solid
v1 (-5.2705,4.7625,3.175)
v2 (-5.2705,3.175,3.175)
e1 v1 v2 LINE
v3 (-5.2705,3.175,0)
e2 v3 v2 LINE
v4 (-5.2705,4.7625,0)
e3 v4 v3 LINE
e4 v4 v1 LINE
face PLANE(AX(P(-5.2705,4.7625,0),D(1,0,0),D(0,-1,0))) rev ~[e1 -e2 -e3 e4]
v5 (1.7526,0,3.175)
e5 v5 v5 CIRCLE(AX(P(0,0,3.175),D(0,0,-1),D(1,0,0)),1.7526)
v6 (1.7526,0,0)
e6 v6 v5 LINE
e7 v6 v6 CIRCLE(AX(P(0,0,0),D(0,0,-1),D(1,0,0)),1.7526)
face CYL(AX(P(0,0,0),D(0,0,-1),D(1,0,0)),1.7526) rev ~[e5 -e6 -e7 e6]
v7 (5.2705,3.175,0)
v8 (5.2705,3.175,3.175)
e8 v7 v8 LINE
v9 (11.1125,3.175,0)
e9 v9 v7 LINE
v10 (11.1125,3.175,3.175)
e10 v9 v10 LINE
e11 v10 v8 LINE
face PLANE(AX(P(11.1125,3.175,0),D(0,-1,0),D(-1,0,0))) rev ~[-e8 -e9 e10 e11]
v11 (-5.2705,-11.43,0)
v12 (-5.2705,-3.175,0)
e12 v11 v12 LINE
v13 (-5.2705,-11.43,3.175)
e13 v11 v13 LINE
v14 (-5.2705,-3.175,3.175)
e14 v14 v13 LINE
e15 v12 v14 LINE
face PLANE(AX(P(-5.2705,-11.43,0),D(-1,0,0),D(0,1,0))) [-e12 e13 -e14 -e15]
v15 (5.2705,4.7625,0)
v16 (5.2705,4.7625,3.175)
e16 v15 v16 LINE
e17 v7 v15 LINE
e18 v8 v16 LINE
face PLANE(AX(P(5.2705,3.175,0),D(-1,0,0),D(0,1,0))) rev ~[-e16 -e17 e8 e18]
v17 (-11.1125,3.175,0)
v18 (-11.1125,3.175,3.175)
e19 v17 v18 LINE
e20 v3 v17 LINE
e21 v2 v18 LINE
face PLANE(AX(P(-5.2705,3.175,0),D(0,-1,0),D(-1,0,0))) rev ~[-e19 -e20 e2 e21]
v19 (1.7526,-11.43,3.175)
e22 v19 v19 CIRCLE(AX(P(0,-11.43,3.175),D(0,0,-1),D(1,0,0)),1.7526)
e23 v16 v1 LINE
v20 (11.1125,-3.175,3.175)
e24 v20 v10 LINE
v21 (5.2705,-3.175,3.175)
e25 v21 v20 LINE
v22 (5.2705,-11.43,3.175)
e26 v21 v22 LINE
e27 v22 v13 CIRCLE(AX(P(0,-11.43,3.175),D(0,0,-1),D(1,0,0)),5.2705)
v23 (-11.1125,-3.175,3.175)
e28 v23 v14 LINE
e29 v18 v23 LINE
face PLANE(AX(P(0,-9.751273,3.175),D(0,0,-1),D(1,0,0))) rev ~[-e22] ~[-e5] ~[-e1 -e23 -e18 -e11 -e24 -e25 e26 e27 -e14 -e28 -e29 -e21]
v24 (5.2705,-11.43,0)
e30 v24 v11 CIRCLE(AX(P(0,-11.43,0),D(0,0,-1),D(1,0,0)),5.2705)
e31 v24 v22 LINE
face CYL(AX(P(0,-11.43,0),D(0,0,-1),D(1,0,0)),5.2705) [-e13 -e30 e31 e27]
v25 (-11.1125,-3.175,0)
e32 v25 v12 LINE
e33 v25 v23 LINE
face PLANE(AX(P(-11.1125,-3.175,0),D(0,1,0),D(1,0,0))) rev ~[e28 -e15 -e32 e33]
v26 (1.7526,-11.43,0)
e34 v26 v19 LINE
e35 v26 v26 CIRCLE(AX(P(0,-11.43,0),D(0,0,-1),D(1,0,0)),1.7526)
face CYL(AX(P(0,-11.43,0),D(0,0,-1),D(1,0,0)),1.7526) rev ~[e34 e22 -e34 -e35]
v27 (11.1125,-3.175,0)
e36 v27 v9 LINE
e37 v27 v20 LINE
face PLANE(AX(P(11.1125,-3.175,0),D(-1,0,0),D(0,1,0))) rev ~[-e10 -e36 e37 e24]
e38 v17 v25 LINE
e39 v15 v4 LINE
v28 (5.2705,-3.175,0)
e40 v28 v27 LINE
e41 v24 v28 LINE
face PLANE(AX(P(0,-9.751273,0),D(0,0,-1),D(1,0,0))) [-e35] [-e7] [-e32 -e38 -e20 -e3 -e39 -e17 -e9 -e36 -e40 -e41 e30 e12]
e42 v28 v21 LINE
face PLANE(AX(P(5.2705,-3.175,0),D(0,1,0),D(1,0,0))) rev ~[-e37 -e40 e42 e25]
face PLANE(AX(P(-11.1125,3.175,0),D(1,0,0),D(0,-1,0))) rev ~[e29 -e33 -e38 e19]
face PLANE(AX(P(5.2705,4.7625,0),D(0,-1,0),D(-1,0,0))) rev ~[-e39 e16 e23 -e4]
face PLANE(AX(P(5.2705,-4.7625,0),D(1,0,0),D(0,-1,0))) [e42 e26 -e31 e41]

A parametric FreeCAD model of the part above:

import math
import FreeCAD as App
import Part
import Sketcher
Q = App.Units.Quantity

doc = App.newDocument("Part")
body = doc.addObject("PartDesign::Body", "Body")

# Sketch on XY plane
sketch1 = body.newObject("Sketcher::SketchObject", "Sketch")
sketch1.AttachmentSupport = (doc.getObject("XY_Plane"), [""])
sketch1.MapMode = "FlatFace"
sketch1.addGeometry([
    Part.LineSegment(App.Vector(-5.2705, 3.175, 0), App.Vector(-11.1125, 3.175, 0)),  # 0
    Part.LineSegment(App.Vector(-11.1125, 3.175, 0), App.Vector(-11.1125, -3.175, 0)),  # 1
    Part.LineSegment(App.Vector(-11.1125, -3.175, 0), App.Vector(-5.2705, -3.175, 0)),  # 2
    Part.LineSegment(App.Vector(-5.2705, -3.175, 0), App.Vector(-5.2705, -4.7625, 0)),  # 3
    Part.LineSegment(App.Vector(-5.2705, -4.7625, 0), App.Vector(5.2705, -4.7625, 0)),  # 4
    Part.LineSegment(App.Vector(5.2705, -4.7625, 0), App.Vector(5.2705, -3.175, 0)),  # 5
    Part.LineSegment(App.Vector(5.2705, -3.175, 0), App.Vector(11.1125, -3.175, 0)),  # 6
    Part.LineSegment(App.Vector(11.1125, -3.175, 0), App.Vector(11.1125, 3.175, 0)),  # 7
    Part.LineSegment(App.Vector(11.1125, 3.175, 0), App.Vector(5.2705, 3.175, 0)),  # 8
    Part.LineSegment(App.Vector(5.2705, 3.175, 0), App.Vector(5.2705, 4.7625, 0)),  # 9
    Part.LineSegment(App.Vector(5.2705, 4.7625, 0), App.Vector(-5.2705, 4.7625, 0)),  # 10
    Part.LineSegment(App.Vector(-5.2705, 4.7625, 0), App.Vector(-5.2705, 3.175, 0)),  # 11
], False)
sketch1.addConstraint([
    Sketcher.Constraint("Coincident", 0, 2, 1, 1),
    Sketcher.Constraint("Coincident", 1, 2, 2, 1),
    Sketcher.Constraint("Coincident", 2, 2, 3, 1),
    Sketcher.Constraint("Coincident", 3, 2, 4, 1),
    Sketcher.Constraint("Coincident", 4, 2, 5, 1),
    Sketcher.Constraint("Coincident", 5, 2, 6, 1),
    Sketcher.Constraint("Coincident", 6, 2, 7, 1),
    Sketcher.Constraint("Coincident", 7, 2, 8, 1),
    Sketcher.Constraint("Coincident", 8, 2, 9, 1),
    Sketcher.Constraint("Coincident", 9, 2, 10, 1),
    Sketcher.Constraint("Coincident", 10, 2, 11, 1),
    Sketcher.Constraint("Coincident", 11, 2, 0, 1),
    Sketcher.Constraint("Horizontal", 0),
    Sketcher.Constraint("Vertical", 1),
    Sketcher.Constraint("Horizontal", 2),
    Sketcher.Constraint("Vertical", 3),
    Sketcher.Constraint("Horizontal", 4),
    Sketcher.Constraint("Vertical", 5),
    Sketcher.Constraint("Horizontal", 6),
    Sketcher.Constraint("Vertical", 7),
    Sketcher.Constraint("Horizontal", 8),
    Sketcher.Constraint("Vertical", 9),
    Sketcher.Constraint("Horizontal", 10),
    Sketcher.Constraint("Vertical", 11),
    Sketcher.Constraint("Symmetric", 0, 2, 6, 2, -1, 1),
    Sketcher.Constraint("Symmetric", 2, 2, 8, 2, -1, 1),
    Sketcher.Constraint("Symmetric", 4, 2, 10, 2, -1, 1),
    Sketcher.Constraint("Symmetric", 2, 2, 5, 2, -2),
    Sketcher.Constraint("DistanceX", 0, 2, 0, 1, Q("0.23 in")),
    Sketcher.Constraint("DistanceY", 1, 2, 1, 1, Q("0.25 in")),
    Sketcher.Constraint("DistanceX", 4, 1, 4, 2, Q("0.415 in")),
    Sketcher.Constraint("DistanceY", 3, 2, 3, 1, Q("0.0625 in")),
])
pad1 = body.newObject("PartDesign::Pad", "Pad")
pad1.Profile = sketch1
pad1.Length = Q("0.125 in")

# Sketch on XY plane
sketch2 = body.newObject("Sketcher::SketchObject", "Sketch001")
sketch2.AttachmentSupport = (doc.getObject("XY_Plane"), [""])
sketch2.MapMode = "FlatFace"
sketch2.addGeometry([
    Part.LineSegment(App.Vector(5.2705, -4.7625, 0), App.Vector(5.2705, -11.43, 0)),  # 0
    Part.ArcOfCircle(Part.Circle(App.Vector(0, -11.43, 0), App.Vector(0, 0, 1), 5.2705), math.radians(180), math.radians(360)),  # 1
    Part.LineSegment(App.Vector(-5.2705, -11.43, 0), App.Vector(-5.2705, -4.7625, 0)),  # 2
    Part.LineSegment(App.Vector(-5.2705, -4.7625, 0), App.Vector(5.2705, -4.7625, 0)),  # 3
    Part.Circle(App.Vector(0, -11.43, 0), App.Vector(0, 0, 1), 1.7526),  # 4
], False)
sketch2.addConstraint([
    Sketcher.Constraint("Tangent", 0, 2, 1, 2),
    Sketcher.Constraint("Tangent", 1, 1, 2, 1),
    Sketcher.Constraint("Coincident", 2, 2, 3, 1),
    Sketcher.Constraint("Coincident", 3, 2, 0, 1),
    Sketcher.Constraint("Vertical", 0),
    Sketcher.Constraint("Vertical", 2),
    Sketcher.Constraint("Horizontal", 3),
    Sketcher.Constraint("Coincident", 4, 3, 1, 3),
    Sketcher.Constraint("PointOnObject", 1, 3, -2),
    Sketcher.Constraint("Diameter", 4, Q("0.138 in")),
    Sketcher.Constraint("Radius", 1, Q("0.2075 in")),
    Sketcher.Constraint("DistanceY", 1, 3, -1, 1, Q("0.45 in")),
    Sketcher.Constraint("DistanceY", 0, 2, 0, 1, Q("0.2625 in")),
])
pad2 = body.newObject("PartDesign::Pad", "Pad001")
pad2.Profile = sketch2
pad2.Length = Q("0.125 in")

# Sketch on XY plane
sketch3 = body.newObject("Sketcher::SketchObject", "Sketch002")
sketch3.AttachmentSupport = (doc.getObject("XY_Plane"), [""])
sketch3.MapMode = "FlatFace"
sketch3.addGeometry(Part.Circle(App.Vector(0, 0, 0), App.Vector(0, 0, 1), 1.7526), False)
sketch3.addConstraint([
    Sketcher.Constraint("Coincident", 0, 3, -1, 1),
    Sketcher.Constraint("Diameter", 0, Q("0.138 in")),
])
pocket1 = body.newObject("PartDesign::Pocket", "Pocket")
pocket1.Profile = sketch3
pocket1.Length = Q("1 in")
pocket1.Reversed = True

doc.recompute()
